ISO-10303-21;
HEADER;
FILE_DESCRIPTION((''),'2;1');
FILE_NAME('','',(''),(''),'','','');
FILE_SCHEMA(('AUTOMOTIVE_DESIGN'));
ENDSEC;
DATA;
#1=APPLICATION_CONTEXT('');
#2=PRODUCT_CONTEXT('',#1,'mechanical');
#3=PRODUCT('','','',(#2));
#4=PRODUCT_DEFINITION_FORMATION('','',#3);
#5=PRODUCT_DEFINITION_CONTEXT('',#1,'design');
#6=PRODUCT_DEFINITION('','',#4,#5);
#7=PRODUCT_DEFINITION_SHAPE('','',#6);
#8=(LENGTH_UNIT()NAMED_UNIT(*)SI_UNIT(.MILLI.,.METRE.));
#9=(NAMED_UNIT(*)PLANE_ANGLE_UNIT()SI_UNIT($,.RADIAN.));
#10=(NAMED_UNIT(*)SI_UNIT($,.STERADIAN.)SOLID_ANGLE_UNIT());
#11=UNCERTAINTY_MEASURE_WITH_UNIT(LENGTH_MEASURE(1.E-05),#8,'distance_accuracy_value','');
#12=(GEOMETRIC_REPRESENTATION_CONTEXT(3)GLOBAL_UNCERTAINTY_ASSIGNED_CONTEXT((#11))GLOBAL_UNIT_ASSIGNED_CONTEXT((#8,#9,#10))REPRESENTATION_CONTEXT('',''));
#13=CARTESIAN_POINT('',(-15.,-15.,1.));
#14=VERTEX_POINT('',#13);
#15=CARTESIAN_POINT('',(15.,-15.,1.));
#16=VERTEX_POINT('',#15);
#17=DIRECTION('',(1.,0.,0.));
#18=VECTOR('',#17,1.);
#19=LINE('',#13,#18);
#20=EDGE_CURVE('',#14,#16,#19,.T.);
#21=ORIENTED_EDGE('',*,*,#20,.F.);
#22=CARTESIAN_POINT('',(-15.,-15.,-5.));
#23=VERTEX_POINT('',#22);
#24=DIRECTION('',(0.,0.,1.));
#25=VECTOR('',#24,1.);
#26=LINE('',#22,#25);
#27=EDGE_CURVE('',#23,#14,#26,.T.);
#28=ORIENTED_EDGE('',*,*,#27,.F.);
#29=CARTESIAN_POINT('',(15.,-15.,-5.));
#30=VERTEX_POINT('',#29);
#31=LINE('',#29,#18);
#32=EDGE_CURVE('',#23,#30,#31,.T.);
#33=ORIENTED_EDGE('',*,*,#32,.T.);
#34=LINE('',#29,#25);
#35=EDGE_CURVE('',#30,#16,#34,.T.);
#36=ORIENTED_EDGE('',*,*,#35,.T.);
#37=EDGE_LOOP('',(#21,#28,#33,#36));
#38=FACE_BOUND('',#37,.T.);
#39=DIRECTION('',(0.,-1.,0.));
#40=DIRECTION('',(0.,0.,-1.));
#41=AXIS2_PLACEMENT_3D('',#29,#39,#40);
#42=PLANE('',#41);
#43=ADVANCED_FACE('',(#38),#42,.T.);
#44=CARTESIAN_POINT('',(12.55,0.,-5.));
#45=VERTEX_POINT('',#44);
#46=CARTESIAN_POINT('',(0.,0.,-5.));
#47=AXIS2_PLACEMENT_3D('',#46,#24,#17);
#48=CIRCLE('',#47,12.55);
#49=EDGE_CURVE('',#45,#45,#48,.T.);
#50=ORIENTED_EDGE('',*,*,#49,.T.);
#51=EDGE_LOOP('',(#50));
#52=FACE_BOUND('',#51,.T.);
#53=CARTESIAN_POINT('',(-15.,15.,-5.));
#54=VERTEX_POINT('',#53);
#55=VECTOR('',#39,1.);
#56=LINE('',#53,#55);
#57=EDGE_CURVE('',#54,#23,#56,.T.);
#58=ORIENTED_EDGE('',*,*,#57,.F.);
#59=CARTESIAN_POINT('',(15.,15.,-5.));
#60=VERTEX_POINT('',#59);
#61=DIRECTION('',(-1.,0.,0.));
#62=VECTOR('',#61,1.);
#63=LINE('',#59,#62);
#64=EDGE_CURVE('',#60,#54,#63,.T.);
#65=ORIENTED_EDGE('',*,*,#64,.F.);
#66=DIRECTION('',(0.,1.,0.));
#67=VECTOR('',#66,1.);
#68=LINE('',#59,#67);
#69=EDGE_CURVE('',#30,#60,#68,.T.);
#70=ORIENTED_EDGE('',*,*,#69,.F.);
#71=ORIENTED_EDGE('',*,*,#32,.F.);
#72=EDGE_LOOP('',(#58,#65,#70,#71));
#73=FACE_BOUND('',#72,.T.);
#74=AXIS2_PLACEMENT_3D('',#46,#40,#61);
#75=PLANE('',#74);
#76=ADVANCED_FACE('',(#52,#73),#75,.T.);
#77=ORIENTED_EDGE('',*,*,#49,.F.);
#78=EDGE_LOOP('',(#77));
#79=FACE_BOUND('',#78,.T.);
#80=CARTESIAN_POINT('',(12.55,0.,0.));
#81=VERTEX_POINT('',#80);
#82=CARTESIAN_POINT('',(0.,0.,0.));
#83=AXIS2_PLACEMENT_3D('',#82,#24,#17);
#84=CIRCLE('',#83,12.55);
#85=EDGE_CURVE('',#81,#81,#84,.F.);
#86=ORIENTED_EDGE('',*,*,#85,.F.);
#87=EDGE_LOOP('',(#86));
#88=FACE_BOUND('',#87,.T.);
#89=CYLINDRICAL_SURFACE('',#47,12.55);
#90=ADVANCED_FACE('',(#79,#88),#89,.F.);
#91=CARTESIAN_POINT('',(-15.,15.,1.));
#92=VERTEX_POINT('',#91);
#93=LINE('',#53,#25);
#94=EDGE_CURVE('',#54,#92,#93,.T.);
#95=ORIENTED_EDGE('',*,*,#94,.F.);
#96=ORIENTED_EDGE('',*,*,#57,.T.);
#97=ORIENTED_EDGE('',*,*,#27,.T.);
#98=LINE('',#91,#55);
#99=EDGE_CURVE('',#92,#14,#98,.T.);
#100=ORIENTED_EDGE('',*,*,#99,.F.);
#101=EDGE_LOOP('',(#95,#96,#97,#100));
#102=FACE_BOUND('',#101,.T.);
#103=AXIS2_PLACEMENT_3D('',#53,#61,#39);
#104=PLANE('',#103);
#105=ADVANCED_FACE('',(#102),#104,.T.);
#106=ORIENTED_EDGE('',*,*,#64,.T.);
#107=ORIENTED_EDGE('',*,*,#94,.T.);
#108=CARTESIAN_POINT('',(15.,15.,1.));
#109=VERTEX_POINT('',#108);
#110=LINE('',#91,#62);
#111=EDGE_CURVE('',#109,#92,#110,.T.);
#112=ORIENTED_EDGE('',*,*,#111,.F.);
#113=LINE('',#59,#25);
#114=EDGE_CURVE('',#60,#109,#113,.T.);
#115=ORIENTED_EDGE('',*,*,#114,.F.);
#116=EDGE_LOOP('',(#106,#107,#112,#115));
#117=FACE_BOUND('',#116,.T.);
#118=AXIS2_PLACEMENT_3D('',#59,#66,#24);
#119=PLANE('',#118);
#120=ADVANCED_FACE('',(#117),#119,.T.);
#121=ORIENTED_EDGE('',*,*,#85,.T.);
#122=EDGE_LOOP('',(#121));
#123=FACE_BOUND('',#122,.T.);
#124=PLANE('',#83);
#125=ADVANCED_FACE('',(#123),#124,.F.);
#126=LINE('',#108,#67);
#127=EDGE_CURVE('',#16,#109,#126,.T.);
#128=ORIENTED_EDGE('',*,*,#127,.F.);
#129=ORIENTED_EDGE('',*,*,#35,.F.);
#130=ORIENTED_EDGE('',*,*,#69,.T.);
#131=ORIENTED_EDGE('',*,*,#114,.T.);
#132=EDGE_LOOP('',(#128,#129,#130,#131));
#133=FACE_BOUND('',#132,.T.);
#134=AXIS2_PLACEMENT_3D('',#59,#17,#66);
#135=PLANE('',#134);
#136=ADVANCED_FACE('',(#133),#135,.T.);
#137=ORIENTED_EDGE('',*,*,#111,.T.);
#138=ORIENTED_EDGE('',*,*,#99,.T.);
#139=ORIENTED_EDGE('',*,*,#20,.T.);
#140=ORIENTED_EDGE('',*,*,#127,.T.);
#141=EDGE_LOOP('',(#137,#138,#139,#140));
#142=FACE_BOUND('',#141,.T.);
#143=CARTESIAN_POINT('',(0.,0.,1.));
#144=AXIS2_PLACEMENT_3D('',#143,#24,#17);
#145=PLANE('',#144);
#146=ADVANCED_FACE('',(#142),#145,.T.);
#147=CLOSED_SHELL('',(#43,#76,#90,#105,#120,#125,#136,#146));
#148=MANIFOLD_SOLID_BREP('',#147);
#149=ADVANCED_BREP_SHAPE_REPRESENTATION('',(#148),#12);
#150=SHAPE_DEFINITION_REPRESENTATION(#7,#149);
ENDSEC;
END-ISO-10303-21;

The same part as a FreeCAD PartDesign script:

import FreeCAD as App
import Part
import Sketcher
from FreeCAD import Vector


def add_polygon(sketch, points):
    """Adds a closed chain of lines whose ends are joined by coincident constraints."""
    first, n = sketch.GeometryCount, len(points)
    for a, b in zip(points, points[1:] + points[:1]):
        sketch.addGeometry(Part.LineSegment(App.Vector(*a, 0), App.Vector(*b, 0)), False)
    for i in range(n):
        sketch.addConstraint(Sketcher.Constraint("Coincident", first + i, 2, first + (i + 1) % n, 1))

doc = App.newDocument("Part")
body = doc.addObject("PartDesign::Body", "Body")

# Sketch on XY plane
sketch1 = body.newObject("Sketcher::SketchObject", "Sketch")
sketch1.AttachmentSupport = (doc.getObject("XY_Plane"), [""])
sketch1.MapMode = "FlatFace"
add_polygon(sketch1, [(-15, 15), (-15, -15), (15, -15), (15, 15)])  # lines 0-3
sketch1.addGeometry(Part.Circle(Vector(0, 0, 0), Vector(0, 0, 1), 12.55), False)  # 4
sketch1.addConstraint([
    Sketcher.Constraint("Vertical", 0),
    Sketcher.Constraint("Horizontal", 1),
    Sketcher.Constraint("Vertical", 2),
    Sketcher.Constraint("Horizontal", 3),
    Sketcher.Constraint("Coincident", 4, 3, -1, 1),
    Sketcher.Constraint("Symmetric", 0, 2, 2, 2, -1, 1),
    Sketcher.Constraint("Equal", 3, 0),
    Sketcher.Constraint("Diameter", 4, 25.1),
    Sketcher.Constraint("DistanceX", 1, 1, 1, 2, 30.0),
])
pad1 = body.newObject("PartDesign::Pad", "Pad")
pad1.Profile = sketch1
pad1.Length = 5
pad1.Reversed = True

# Sketch on XY plane
sketch2 = body.newObject("Sketcher::SketchObject", "Sketch001")
sketch2.AttachmentSupport = (doc.getObject("XY_Plane"), [""])
sketch2.MapMode = "FlatFace"
add_polygon(sketch2, [(-15, 15), (-15, -15), (15, -15), (15, 15)])  # lines 0-3
sketch2.addConstraint([
    Sketcher.Constraint("Vertical", 0),
    Sketcher.Constraint("Horizontal", 1),
    Sketcher.Constraint("Vertical", 2),
    Sketcher.Constraint("Horizontal", 3),
    Sketcher.Constraint("Symmetric", 0, 2, 2, 2, -1, 1),
    Sketcher.Constraint("Equal", 3, 0),
    Sketcher.Constraint("DistanceX", 1, 1, 1, 2, 30.0),
])
pad2 = body.newObject("PartDesign::Pad", "Pad001")
pad2.Profile = sketch2
pad2.Length = 1

doc.recompute()
